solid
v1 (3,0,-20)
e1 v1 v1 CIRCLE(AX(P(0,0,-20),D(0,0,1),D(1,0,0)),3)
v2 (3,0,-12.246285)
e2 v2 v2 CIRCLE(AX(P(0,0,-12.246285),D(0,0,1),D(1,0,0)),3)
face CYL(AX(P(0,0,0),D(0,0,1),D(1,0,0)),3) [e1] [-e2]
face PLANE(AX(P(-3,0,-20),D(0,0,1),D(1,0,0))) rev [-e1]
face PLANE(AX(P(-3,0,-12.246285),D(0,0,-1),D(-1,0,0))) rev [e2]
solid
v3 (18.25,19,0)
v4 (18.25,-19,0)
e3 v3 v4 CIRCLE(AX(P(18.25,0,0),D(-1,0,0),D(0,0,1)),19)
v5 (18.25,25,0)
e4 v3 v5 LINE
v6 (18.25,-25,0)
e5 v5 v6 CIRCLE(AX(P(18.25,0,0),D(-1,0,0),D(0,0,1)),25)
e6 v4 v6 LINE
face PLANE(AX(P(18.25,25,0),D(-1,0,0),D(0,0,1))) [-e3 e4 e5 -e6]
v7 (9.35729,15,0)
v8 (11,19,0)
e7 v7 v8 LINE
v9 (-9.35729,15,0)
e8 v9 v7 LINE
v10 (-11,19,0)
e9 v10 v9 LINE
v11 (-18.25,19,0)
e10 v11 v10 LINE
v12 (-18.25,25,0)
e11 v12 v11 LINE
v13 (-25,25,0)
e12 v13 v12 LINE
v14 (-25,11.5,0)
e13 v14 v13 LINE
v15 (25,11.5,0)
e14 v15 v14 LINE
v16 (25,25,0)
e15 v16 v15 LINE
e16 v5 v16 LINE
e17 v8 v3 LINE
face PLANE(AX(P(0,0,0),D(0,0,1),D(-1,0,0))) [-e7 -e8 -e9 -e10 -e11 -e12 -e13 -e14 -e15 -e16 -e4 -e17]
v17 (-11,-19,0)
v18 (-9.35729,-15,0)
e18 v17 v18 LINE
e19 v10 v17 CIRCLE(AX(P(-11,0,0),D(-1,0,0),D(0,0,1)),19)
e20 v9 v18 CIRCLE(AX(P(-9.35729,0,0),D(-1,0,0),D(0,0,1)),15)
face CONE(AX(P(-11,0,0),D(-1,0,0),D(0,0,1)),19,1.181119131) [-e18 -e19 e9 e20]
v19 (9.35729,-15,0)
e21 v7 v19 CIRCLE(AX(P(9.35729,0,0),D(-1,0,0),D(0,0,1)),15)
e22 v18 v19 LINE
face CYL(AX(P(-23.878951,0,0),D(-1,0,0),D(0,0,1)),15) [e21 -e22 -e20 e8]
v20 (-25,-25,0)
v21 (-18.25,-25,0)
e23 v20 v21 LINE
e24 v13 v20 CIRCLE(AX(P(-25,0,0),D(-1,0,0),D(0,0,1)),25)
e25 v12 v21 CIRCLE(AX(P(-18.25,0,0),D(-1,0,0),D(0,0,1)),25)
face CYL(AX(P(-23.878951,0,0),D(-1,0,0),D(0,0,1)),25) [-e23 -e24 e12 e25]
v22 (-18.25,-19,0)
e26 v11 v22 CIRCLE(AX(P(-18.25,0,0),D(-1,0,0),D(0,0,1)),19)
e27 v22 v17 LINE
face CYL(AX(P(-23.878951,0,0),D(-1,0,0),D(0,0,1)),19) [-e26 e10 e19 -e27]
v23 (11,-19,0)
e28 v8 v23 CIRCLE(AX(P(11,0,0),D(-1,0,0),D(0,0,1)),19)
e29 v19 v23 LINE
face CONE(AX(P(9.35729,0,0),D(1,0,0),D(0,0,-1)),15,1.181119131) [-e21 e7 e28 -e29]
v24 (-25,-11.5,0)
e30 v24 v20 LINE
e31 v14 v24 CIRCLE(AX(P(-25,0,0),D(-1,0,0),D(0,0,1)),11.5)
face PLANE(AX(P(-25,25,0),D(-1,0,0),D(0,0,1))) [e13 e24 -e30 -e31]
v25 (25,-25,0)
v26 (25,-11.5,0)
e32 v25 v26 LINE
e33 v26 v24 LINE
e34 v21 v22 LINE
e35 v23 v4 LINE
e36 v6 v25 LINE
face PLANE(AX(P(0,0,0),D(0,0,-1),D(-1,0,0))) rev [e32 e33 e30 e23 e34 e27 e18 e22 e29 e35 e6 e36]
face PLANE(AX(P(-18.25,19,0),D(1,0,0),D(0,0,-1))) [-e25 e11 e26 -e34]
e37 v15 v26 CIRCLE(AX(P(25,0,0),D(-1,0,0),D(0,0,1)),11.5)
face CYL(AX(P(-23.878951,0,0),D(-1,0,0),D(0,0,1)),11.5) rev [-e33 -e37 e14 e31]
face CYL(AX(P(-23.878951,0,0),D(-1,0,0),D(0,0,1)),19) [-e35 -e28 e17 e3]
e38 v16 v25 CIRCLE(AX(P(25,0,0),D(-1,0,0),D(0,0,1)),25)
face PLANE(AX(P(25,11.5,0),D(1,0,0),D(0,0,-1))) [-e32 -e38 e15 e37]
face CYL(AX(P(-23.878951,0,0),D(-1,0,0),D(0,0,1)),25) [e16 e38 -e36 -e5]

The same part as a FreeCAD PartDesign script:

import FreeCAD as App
import Part
import Sketcher
from FreeCAD import Vector
Q = App.Units.Quantity


def add_polygon(sketch, points):
    """Adds a closed chain of lines whose ends are joined by coincident constraints."""
    first, n = sketch.GeometryCount, len(points)
    for a, b in zip(points, points[1:] + points[:1]):
        sketch.addGeometry(Part.LineSegment(App.Vector(*a, 0), App.Vector(*b, 0)), False)
    for i in range(n):
        sketch.addConstraint(Sketcher.Constraint("Coincident", first + i, 2, first + (i + 1) % n, 1))

doc = App.newDocument("Part")
body = doc.addObject("PartDesign::Body", "Body")

# Sketch on XY plane
sketch1 = body.newObject("Sketcher::SketchObject", "Sketch")
sketch1.AttachmentSupport = (doc.getObject("XY_Plane"), [""])
sketch1.MapMode = "FlatFace"
add_polygon(sketch1, [(25, -11.5), (-25, -11.5), (-25, -25), (-18.25, -25), (-18.25, -19), (-11, -19), (-9.35729, -15), (9.35729, -15), (11, -19), (18.25, -19), (18.25, -25), (25, -25)])  # lines 0-11
sketch1.addConstraint([
    Sketcher.Constraint("Horizontal", 0),
    Sketcher.Constraint("Vertical", 1),
    Sketcher.Constraint("Horizontal", 2),
    Sketcher.Constraint("Vertical", 3),
    Sketcher.Constraint("Horizontal", 4),
    Sketcher.Constraint("Horizontal", 6),
    Sketcher.Constraint("Horizontal", 8),
    Sketcher.Constraint("Vertical", 9),
    Sketcher.Constraint("Horizontal", 10),
    Sketcher.Constraint("Vertical", 11),
    Sketcher.Constraint("Symmetric", 4, 2, 7, 2, -2),
    Sketcher.Constraint("Symmetric", 2, 2, 9, 2, -2),
    Sketcher.Constraint("Equal", 2, 10),
    Sketcher.Constraint("Equal", 5, 7),
    Sketcher.Constraint("DistanceX", 0, 2, 0, 1, Q("50 mm")),
    Sketcher.Constraint("DistanceY", 3, 1, 3, 2, Q("6 mm")),
    Sketcher.Constraint("DistanceY", 1, 2, 1, 1, Q("13.5 mm")),
    Sketcher.Constraint("DistanceY", 1, 2, -1, 1, Q("25 mm")),
    Sketcher.Constraint("DistanceX", 4, 2, -1, 1, Q("11 mm")),
    Sketcher.Constraint("DistanceY", 5, 2, -1, 1, Q("15 mm")),
    Sketcher.Constraint("DistanceX", 2, 1, 2, 2, Q("6.75 mm")),
    Sketcher.Constraint("DistanceX", 6, 1, 6, 2, Q("18.714579 mm")),
])
revolution = body.newObject("PartDesign::Revolution", "Revolution")
revolution.Profile = sketch1
revolution.ReferenceAxis = (sketch1, ["H_Axis"])
revolution.Angle = 180
body2 = doc.addObject("PartDesign::Body", "Body001")

# Sketch on XZ plane
sketch2 = body2.newObject("Sketcher::SketchObject", "Sketch001")
sketch2.AttachmentSupport = (doc.getObject("XZ_Plane001"), [""])
sketch2.MapMode = "FlatFace"
add_polygon(sketch2, [(-3, -20), (-3, -12.246285), (0, -12.246285), (0, -20)])  # lines 0-3
sketch2.addConstraint([
    Sketcher.Constraint("Vertical", 0),
    Sketcher.Constraint("Horizontal", 1),
    Sketcher.Constraint("Vertical", 2),
    Sketcher.Constraint("Horizontal", 3),
    Sketcher.Constraint("PointOnObject", 1, 2, -2),
    Sketcher.Constraint("DistanceX", 1, 1, 1, 2, Q("3 mm")),
    Sketcher.Constraint("DistanceY", 2, 2, -1, 1, Q("20 mm")),
    Sketcher.Constraint("DistanceY", 0, 1, 0, 2, Q("7.753715 mm")),
])
revolution2 = body2.newObject("PartDesign::Revolution", "Revolution001")
revolution2.Profile = sketch2
revolution2.ReferenceAxis = (sketch2, ["V_Axis"])
revolution2.Angle = 360

doc.recompute()
